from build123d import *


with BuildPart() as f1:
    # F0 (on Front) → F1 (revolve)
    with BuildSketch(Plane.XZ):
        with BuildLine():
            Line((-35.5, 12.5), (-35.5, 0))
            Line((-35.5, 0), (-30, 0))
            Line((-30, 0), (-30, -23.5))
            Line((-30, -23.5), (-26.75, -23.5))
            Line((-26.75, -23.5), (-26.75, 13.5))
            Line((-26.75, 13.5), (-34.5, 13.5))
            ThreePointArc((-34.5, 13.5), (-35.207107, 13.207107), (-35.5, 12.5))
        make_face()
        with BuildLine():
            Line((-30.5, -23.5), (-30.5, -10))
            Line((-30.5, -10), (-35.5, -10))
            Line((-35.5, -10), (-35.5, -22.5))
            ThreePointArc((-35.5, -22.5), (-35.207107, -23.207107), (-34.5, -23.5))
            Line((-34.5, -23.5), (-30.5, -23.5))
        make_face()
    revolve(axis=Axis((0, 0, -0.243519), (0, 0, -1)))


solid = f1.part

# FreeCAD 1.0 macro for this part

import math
import FreeCAD as App
import Part
import Sketcher

V = App.Vector
Q = App.Units.Quantity

doc = App.newDocument("Part")
body = doc.addObject("PartDesign::Body", "Body")
body.AllowCompound = True

# Sketch on XZ plane
sketch1 = doc.addObject("Sketcher::SketchObject", "Sketch")
body.addObject(sketch1)
sketch1.AttachmentSupport = (doc.XZ_Plane, [""])
sketch1.MapMode = "FlatFace"
sketch1.addGeometry([
    Part.LineSegment(V(-35.5, 12.5, 0), V(-35.5, 0, 0)),  # 0
    Part.LineSegment(V(-35.5, 0, 0), V(-30, 0, 0)),  # 1
    Part.LineSegment(V(-30, 0, 0), V(-30, -23.5, 0)),  # 2
    Part.LineSegment(V(-30, -23.5, 0), V(-26.75, -23.5, 0)),  # 3
    Part.LineSegment(V(-26.75, -23.5, 0), V(-26.75, 13.5, 0)),  # 4
    Part.LineSegment(V(-26.75, 13.5, 0), V(-34.5, 13.5, 0)),  # 5
    Part.ArcOfCircle(Part.Circle(V(-34.500001, 12.500001, 0), V(0, 0, 1), 0.999999), math.radians(89.999957), math.radians(180.000043)),  # 6
    Part.LineSegment(V(-30.5, -23.5, 0), V(-30.5, -10, 0)),  # 7
    Part.LineSegment(V(-30.5, -10, 0), V(-35.5, -10, 0)),  # 8
    Part.LineSegment(V(-35.5, -10, 0), V(-35.5, -22.5, 0)),  # 9
    Part.ArcOfCircle(Part.Circle(V(-34.500001, -22.500001, 0), V(0, 0, 1), 0.999999), math.radians(179.999957), math.radians(270.000043)),  # 10
    Part.LineSegment(V(-34.5, -23.5, 0), V(-30.5, -23.5, 0)),  # 11
], False)
sketch1.addConstraint([
    Sketcher.Constraint("Coincident", 0, 2, 1, 1),
    Sketcher.Constraint("Coincident", 1, 2, 2, 1),
    Sketcher.Constraint("Coincident", 2, 2, 3, 1),
    Sketcher.Constraint("Coincident", 3, 2, 4, 1),
    Sketcher.Constraint("Coincident", 4, 2, 5, 1),
    Sketcher.Constraint("Tangent", 5, 2, 6, 1),
    Sketcher.Constraint("Tangent", 6, 2, 0, 1),
    Sketcher.Constraint("Coincident", 7, 2, 8, 1),
    Sketcher.Constraint("Coincident", 8, 2, 9, 1),
    Sketcher.Constraint("Tangent", 9, 2, 10, 1),
    Sketcher.Constraint("Tangent", 10, 2, 11, 1),
    Sketcher.Constraint("Coincident", 11, 2, 7, 1),
    Sketcher.Constraint("Vertical", 0),
    Sketcher.Constraint("Horizontal", 1),
    Sketcher.Constraint("Vertical", 2),
    Sketcher.Constraint("Horizontal", 3),
    Sketcher.Constraint("Vertical", 4),
    Sketcher.Constraint("Horizontal", 5),
    Sketcher.Constraint("Vertical", 7),
    Sketcher.Constraint("Horizontal", 8),
    Sketcher.Constraint("Vertical", 9),
    Sketcher.Constraint("Horizontal", 11),
    Sketcher.Constraint("Equal", 6, 10),
    Sketcher.Constraint("PointOnObject", 0, 2, -1),
    Sketcher.Constraint("Horizontal", 3, 2, 10, 2),
    Sketcher.Constraint("Vertical", 6, 3, 10, 3),
    Sketcher.Constraint("Equal", 0, 9),
    Sketcher.Constraint("Radius", 6, Q("0.999999 mm")),
    Sketcher.Constraint("DistanceX", 8, 2, 8, 1, Q("5 mm")),
    Sketcher.Constraint("DistanceY", 4, 1, 4, 2, Q("37 mm")),
    Sketcher.Constraint("DistanceX", 1, 1, 1, 2, Q("5.5 mm")),
    Sketcher.Constraint("DistanceY", 0, 2, 0, 1, Q("12.5 mm")),
    Sketcher.Constraint("DistanceX", 1, 2, -1, 1, Q("30 mm")),
    Sketcher.Constraint("DistanceX", 3, 1, 3, 2, Q("3.25 mm")),
])
revolution = doc.addObject("PartDesign::Revolution", "Revolution")
body.addObject(revolution)
revolution.Profile = sketch1
revolution.ReferenceAxis = (sketch1, ["V_Axis"])
revolution.Angle = 360

doc.recompute()
